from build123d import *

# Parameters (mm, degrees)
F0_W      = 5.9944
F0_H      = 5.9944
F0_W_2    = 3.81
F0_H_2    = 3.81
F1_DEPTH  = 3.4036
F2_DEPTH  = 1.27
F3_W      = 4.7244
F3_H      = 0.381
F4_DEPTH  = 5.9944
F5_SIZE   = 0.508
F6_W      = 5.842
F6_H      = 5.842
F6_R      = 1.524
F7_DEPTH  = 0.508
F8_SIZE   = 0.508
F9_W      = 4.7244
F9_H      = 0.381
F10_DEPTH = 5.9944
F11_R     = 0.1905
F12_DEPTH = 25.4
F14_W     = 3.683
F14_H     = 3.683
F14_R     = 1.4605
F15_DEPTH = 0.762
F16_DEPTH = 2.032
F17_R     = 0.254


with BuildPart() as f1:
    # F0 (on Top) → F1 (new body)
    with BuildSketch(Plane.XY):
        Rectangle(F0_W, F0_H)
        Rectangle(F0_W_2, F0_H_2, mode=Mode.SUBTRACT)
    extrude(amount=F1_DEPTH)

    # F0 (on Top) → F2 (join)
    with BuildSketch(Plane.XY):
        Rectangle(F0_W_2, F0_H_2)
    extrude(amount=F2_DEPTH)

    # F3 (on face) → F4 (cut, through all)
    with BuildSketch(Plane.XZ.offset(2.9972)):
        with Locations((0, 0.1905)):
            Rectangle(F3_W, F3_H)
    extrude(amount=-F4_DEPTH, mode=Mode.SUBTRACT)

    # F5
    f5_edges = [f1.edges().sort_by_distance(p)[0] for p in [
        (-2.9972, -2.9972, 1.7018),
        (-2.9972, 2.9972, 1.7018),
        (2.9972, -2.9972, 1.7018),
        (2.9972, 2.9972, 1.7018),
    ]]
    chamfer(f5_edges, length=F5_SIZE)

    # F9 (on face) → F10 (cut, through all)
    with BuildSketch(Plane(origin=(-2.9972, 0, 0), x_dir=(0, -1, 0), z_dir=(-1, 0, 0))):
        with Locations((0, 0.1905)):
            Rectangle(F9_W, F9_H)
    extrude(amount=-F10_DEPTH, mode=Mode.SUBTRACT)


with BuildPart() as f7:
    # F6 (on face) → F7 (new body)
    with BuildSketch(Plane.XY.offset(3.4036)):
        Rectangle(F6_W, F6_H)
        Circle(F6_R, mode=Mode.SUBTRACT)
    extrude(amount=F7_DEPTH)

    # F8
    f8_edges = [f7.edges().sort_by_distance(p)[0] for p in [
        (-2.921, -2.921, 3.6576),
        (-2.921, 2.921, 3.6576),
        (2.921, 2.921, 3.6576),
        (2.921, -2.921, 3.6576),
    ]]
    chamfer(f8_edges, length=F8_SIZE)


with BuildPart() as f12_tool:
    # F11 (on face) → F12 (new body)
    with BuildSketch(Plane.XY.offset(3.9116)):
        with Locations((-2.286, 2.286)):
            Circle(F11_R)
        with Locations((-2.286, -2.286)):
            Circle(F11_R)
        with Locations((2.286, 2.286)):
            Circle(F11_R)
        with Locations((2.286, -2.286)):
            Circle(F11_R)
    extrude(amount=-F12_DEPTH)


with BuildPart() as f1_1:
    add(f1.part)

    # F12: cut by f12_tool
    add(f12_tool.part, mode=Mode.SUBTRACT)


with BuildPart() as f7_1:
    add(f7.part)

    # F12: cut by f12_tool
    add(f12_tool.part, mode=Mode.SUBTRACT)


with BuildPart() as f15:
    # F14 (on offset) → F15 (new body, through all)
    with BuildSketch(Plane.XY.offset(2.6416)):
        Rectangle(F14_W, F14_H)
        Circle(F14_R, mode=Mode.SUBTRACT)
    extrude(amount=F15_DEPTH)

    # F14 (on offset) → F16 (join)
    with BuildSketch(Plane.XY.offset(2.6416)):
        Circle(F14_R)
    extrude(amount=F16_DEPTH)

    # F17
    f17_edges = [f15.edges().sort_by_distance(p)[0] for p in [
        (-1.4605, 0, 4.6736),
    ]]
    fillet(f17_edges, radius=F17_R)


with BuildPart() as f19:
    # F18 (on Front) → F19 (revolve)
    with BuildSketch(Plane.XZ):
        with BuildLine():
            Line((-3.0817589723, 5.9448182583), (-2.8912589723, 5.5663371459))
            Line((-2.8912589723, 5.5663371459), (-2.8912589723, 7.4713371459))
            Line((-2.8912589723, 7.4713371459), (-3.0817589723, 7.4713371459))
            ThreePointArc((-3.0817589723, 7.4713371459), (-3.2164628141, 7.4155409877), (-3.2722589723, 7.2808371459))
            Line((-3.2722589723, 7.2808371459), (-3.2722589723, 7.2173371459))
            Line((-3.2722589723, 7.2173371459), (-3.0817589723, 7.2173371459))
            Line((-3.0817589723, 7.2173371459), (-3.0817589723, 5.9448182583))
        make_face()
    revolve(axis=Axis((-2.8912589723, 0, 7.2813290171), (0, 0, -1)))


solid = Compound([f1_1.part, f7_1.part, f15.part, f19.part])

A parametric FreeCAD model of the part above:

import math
import FreeCAD as App
import Part
import Sketcher

V = App.Vector
Q = App.Units.Quantity


def edges_at(feature, points):
    """Names of the edges that pass closest to the given points."""
    edges = feature.Shape.Edges
    near = lambda p: min(range(len(edges)), key=lambda i: edges[i].distToShape(Part.Vertex(*p))[0])
    return sorted({f"Edge{near(p) + 1}" for p in points})

doc = App.newDocument("Part")
body = doc.addObject("PartDesign::Body", "Body")

sketch1 = doc.addObject("Sketcher::SketchObject", "Sketch")
body.addObject(sketch1)
sketch1.AttachmentSupport = (doc.XY_Plane, [""])
sketch1.MapMode = "FlatFace"
sketch1.addGeometry([
    Part.LineSegment(V(-3, 3, 0), V(-3, -3, 0)),
    Part.LineSegment(V(-3, -3, 0), V(3, -3, 0)),
    Part.LineSegment(V(3, -3, 0), V(3, 3, 0)),
    Part.LineSegment(V(3, 3, 0), V(-3, 3, 0)),
    Part.LineSegment(V(1.9, -1.9, 0), V(-1.9, -1.9, 0)),
    Part.LineSegment(V(-1.9, -1.9, 0), V(-1.9, 1.9, 0)),
    Part.LineSegment(V(-1.9, 1.9, 0), V(1.9, 1.9, 0)),
    Part.LineSegment(V(1.9, 1.9, 0), V(1.9, -1.9, 0)),
], False)
sketch1.addConstraint([
    Sketcher.Constraint("Coincident", 0, 2, 1, 1),
    Sketcher.Constraint("Coincident", 1, 2, 2, 1),
    Sketcher.Constraint("Coincident", 2, 2, 3, 1),
    Sketcher.Constraint("Coincident", 3, 2, 0, 1),
    Sketcher.Constraint("Coincident", 4, 2, 5, 1),
    Sketcher.Constraint("Coincident", 5, 2, 6, 1),
    Sketcher.Constraint("Coincident", 6, 2, 7, 1),
    Sketcher.Constraint("Coincident", 7, 2, 4, 1),
    Sketcher.Constraint("Vertical", 0),
    Sketcher.Constraint("Horizontal", 1),
    Sketcher.Constraint("Vertical", 2),
    Sketcher.Constraint("Horizontal", 3),
    Sketcher.Constraint("Horizontal", 4),
    Sketcher.Constraint("Vertical", 5),
    Sketcher.Constraint("Horizontal", 6),
    Sketcher.Constraint("Vertical", 7),
    Sketcher.Constraint("Symmetric", 0, 2, 2, 2, -1, 1),
    Sketcher.Constraint("Symmetric", 4, 2, 6, 2, -1, 1),
    Sketcher.Constraint("Equal", 3, 0),
    Sketcher.Constraint("Equal", 6, 5),
    Sketcher.Constraint("DistanceX", 4, 2, 4, 1, Q("0.15 in")),
    Sketcher.Constraint("DistanceX", 1, 1, 1, 2, Q("0.236 in")),
])
pad1 = doc.addObject("PartDesign::Pad", "Pad")
body.addObject(pad1)
pad1.Profile = sketch1
pad1.Length = Q("0.134 in")

sketch2 = doc.addObject("Sketcher::SketchObject", "Sketch001")
body.addObject(sketch2)
sketch2.AttachmentSupport = (doc.XY_Plane, [""])
sketch2.MapMode = "FlatFace"
sketch2.addGeometry([
    Part.LineSegment(V(-1.9, 1.9, 0), V(-1.9, -1.9, 0)),
    Part.LineSegment(V(-1.9, -1.9, 0), V(1.9, -1.9, 0)),
    Part.LineSegment(V(1.9, -1.9, 0), V(1.9, 1.9, 0)),
    Part.LineSegment(V(1.9, 1.9, 0), V(-1.9, 1.9, 0)),
], False)
sketch2.addConstraint([
    Sketcher.Constraint("Coincident", 0, 2, 1, 1),
    Sketcher.Constraint("Coincident", 1, 2, 2, 1),
    Sketcher.Constraint("Coincident", 2, 2, 3, 1),
    Sketcher.Constraint("Coincident", 3, 2, 0, 1),
    Sketcher.Constraint("Vertical", 0),
    Sketcher.Constraint("Horizontal", 1),
    Sketcher.Constraint("Vertical", 2),
    Sketcher.Constraint("Horizontal", 3),
    Sketcher.Constraint("Symmetric", 0, 2, 2, 2, -1, 1),
    Sketcher.Constraint("Equal", 3, 0),
    Sketcher.Constraint("DistanceX", 1, 1, 1, 2, Q("0.15 in")),
])
pad2 = doc.addObject("PartDesign::Pad", "Pad001")
body.addObject(pad2)
pad2.Profile = sketch2
pad2.Length = Q("0.05 in")

sketch3 = doc.addObject("Sketcher::SketchObject", "Sketch002")
body.addObject(sketch3)
sketch3.AttachmentSupport = (doc.XZ_Plane, [""])
sketch3.MapMode = "FlatFace"
sketch3.AttachmentOffset = App.Placement(V(0, 0, 0.118 * 25.4), App.Rotation())
sketch3.addGeometry([
    Part.LineSegment(V(-2.36, 0.38, 0), V(-2.36, 0, 0)),
    Part.LineSegment(V(-2.36, 0, 0), V(2.36, 0, 0)),
    Part.LineSegment(V(2.36, 0, 0), V(2.36, 0.38, 0)),
    Part.LineSegment(V(2.36, 0.38, 0), V(-2.36, 0.38, 0)),
], False)
sketch3.addConstraint([
    Sketcher.Constraint("Coincident", 0, 2, 1, 1),
    Sketcher.Constraint("Coincident", 1, 2, 2, 1),
    Sketcher.Constraint("Coincident", 2, 2, 3, 1),
    Sketcher.Constraint("Coincident", 3, 2, 0, 1),
    Sketcher.Constraint("Vertical", 0),
    Sketcher.Constraint("Horizontal", 1),
    Sketcher.Constraint("Vertical", 2),
    Sketcher.Constraint("Horizontal", 3),
    Sketcher.Constraint("Symmetric", 0, 2, 1, 2, -1, 1),
    Sketcher.Constraint("DistanceX", 1, 1, 1, 2, Q("0.186 in")),
    Sketcher.Constraint("DistanceY", 0, 2, 0, 1, Q("0.015 in")),
])
pocket1 = doc.addObject("PartDesign::Pocket", "Pocket")
body.addObject(pocket1)
pocket1.Profile = sketch3
pocket1.Type = "ThroughAll"
doc.recompute()

chamfer = doc.addObject("PartDesign::Chamfer", "Chamfer")
body.addObject(chamfer)
chamfer.Base = (pocket1, edges_at(pocket1, [
    (-2.997, -2.997, 1.702),
    (-2.997, 2.997, 1.702),
    (2.997, -2.997, 1.702),
    (2.997, 2.997, 1.702),
]))
chamfer.Size = Q("0.02 in")

sketch4 = doc.addObject("Sketcher::SketchObject", "Sketch003")
body.addObject(sketch4)
sketch4.AttachmentSupport = (doc.YZ_Plane, [""])
sketch4.MapMode = "FlatFace"
sketch4.AttachmentOffset = App.Placement(V(0, 0, -0.118 * 25.4), App.Rotation())
sketch4.addGeometry([
    Part.LineSegment(V(2.36, 0.38, 0), V(2.36, 0, 0)),
    Part.LineSegment(V(2.36, 0, 0), V(-2.36, 0, 0)),
    Part.LineSegment(V(-2.36, 0, 0), V(-2.36, 0.38, 0)),
    Part.LineSegment(V(-2.36, 0.38, 0), V(2.36, 0.38, 0)),
], False)
sketch4.addConstraint([
    Sketcher.Constraint("Coincident", 0, 2, 1, 1),
    Sketcher.Constraint("Coincident", 1, 2, 2, 1),
    Sketcher.Constraint("Coincident", 2, 2, 3, 1),
    Sketcher.Constraint("Coincident", 3, 2, 0, 1),
    Sketcher.Constraint("Vertical", 0),
    Sketcher.Constraint("Horizontal", 1),
    Sketcher.Constraint("Vertical", 2),
    Sketcher.Constraint("Horizontal", 3),
    Sketcher.Constraint("Symmetric", 0, 2, 1, 2, -1, 1),
    Sketcher.Constraint("DistanceX", 1, 2, 1, 1, Q("0.186 in")),
    Sketcher.Constraint("DistanceY", 0, 2, 0, 1, Q("0.015 in")),
])
pocket2 = doc.addObject("PartDesign::Pocket", "Pocket001")
body.addObject(pocket2)
pocket2.Profile = sketch4
pocket2.Type = "ThroughAll"
pocket2.Reversed = True
body2 = doc.addObject("PartDesign::Body", "Body001")

sketch5 = doc.addObject("Sketcher::SketchObject", "Sketch004")
body2.addObject(sketch5)
sketch5.AttachmentSupport = (doc.getObject("XY_Plane001"), [""])
sketch5.MapMode = "FlatFace"
sketch5.AttachmentOffset = App.Placement(V(0, 0, 0.134 * 25.4), App.Rotation())
sketch5.addGeometry([
    Part.LineSegment(V(-2.9, 2.9, 0), V(-2.9, -2.9, 0)),
    Part.LineSegment(V(-2.9, -2.9, 0), V(2.9, -2.9, 0)),
    Part.LineSegment(V(2.9, -2.9, 0), V(2.9, 2.9, 0)),
    Part.LineSegment(V(2.9, 2.9, 0), V(-2.9, 2.9, 0)),
    Part.Circle(V(0, 0, 0), V(0, 0, 1), 1.5),
], False)
sketch5.addConstraint([
    Sketcher.Constraint("Coincident", 0, 2, 1, 1),
    Sketcher.Constraint("Coincident", 1, 2, 2, 1),
    Sketcher.Constraint("Coincident", 2, 2, 3, 1),
    Sketcher.Constraint("Coincident", 3, 2, 0, 1),
    Sketcher.Constraint("Vertical", 0),
    Sketcher.Constraint("Horizontal", 1),
    Sketcher.Constraint("Vertical", 2),
    Sketcher.Constraint("Horizontal", 3),
    Sketcher.Constraint("Coincident", 4, 3, -1, 1),
    Sketcher.Constraint("Symmetric", 0, 2, 2, 2, -1, 1),
    Sketcher.Constraint("Equal", 3, 0),
    Sketcher.Constraint("Diameter", 4, Q("0.12 in")),
    Sketcher.Constraint("DistanceX", 1, 1, 1, 2, Q("0.23 in")),
])
pad3 = doc.addObject("PartDesign::Pad", "Pad002")
body2.addObject(pad3)
pad3.Profile = sketch5
pad3.Length = Q("0.02 in")
doc.recompute()

chamfer2 = doc.addObject("PartDesign::Chamfer", "Chamfer001")
body2.addObject(chamfer2)
chamfer2.Base = (pad3, edges_at(pad3, [
    (-2.921, -2.921, 3.658),
    (-2.921, 2.921, 3.658),
    (2.921, 2.921, 3.658),
    (2.921, -2.921, 3.658),
]))
chamfer2.Size = Q("0.02 in")
body3 = doc.addObject("PartDesign::Body", "Body002")
body3.AllowCompound = True

sketch6 = doc.addObject("Sketcher::SketchObject", "Sketch005")
body3.addObject(sketch6)
sketch6.AttachmentSupport = (doc.getObject("XY_Plane002"), [""])
sketch6.MapMode = "FlatFace"
sketch6.AttachmentOffset = App.Placement(V(0, 0, 0.154 * 25.4), App.Rotation())
sketch6.addGeometry([
    Part.Circle(V(-2.29, 2.29, 0), V(0, 0, 1), 0.19),
    Part.Circle(V(-2.29, -2.29, 0), V(0, 0, 1), 0.19),
    Part.Circle(V(2.29, 2.29, 0), V(0, 0, 1), 0.19),
    Part.Circle(V(2.29, -2.29, 0), V(0, 0, 1), 0.19),
], False)
sketch6.addConstraint([
    Sketcher.Constraint("Equal", 0, 1),
    Sketcher.Constraint("Equal", 1, 2),
    Sketcher.Constraint("Equal", 2, 3),
    Sketcher.Constraint("Symmetric", 1, 3, 2, 3, -1, 1),
    Sketcher.Constraint("Symmetric", 0, 3, 3, 3, -1, 1),
    Sketcher.Constraint("Symmetric", 0, 3, 2, 3, -2),
    Sketcher.Constraint("Diameter", 0, Q("0.015 in")),
    Sketcher.Constraint("DistanceX", 0, 3, -1, 1, Q("0.09 in")),
    Sketcher.Constraint("DistanceY", -1, 1, 0, 3, Q("0.09 in")),
])
pad4 = doc.addObject("PartDesign::Pad", "Pad003")
body3.addObject(pad4)
pad4.Profile = sketch6
pad4.Length = Q("1 in")
pad4.Reversed = True
doc.recompute()

body4 = doc.addObject("PartDesign::Body", "Body003")
body4.BaseFeature = body3
boolean = doc.addObject("PartDesign::Boolean", "Boolean")
body.addObject(boolean)
boolean.Type = "Cut"
boolean.addObjects([body4])
doc.recompute()

boolean2 = doc.addObject("PartDesign::Boolean", "Boolean001")
body2.addObject(boolean2)
boolean2.Type = "Cut"
boolean2.addObjects([body3])
body5 = doc.addObject("PartDesign::Body", "Body004")

sketch7 = doc.addObject("Sketcher::SketchObject", "Sketch006")
body5.addObject(sketch7)
sketch7.AttachmentSupport = (doc.getObject("XY_Plane004"), [""])
sketch7.MapMode = "FlatFace"
sketch7.AttachmentOffset = App.Placement(V(0, 0, 0.104 * 25.4), App.Rotation())
sketch7.addGeometry([
    Part.LineSegment(V(-1.8, 1.8, 0), V(-1.8, -1.8, 0)),
    Part.LineSegment(V(-1.8, -1.8, 0), V(1.8, -1.8, 0)),
    Part.LineSegment(V(1.8, -1.8, 0), V(1.8, 1.8, 0)),
    Part.LineSegment(V(1.8, 1.8, 0), V(-1.8, 1.8, 0)),
    Part.Circle(V(0, 0, 0), V(0, 0, 1), 1.5),
], False)
sketch7.addConstraint([
    Sketcher.Constraint("Coincident", 0, 2, 1, 1),
    Sketcher.Constraint("Coincident", 1, 2, 2, 1),
    Sketcher.Constraint("Coincident", 2, 2, 3, 1),
    Sketcher.Constraint("Coincident", 3, 2, 0, 1),
    Sketcher.Constraint("Vertical", 0),
    Sketcher.Constraint("Horizontal", 1),
    Sketcher.Constraint("Vertical", 2),
    Sketcher.Constraint("Horizontal", 3),
    Sketcher.Constraint("Coincident", 4, 3, -1, 1),
    Sketcher.Constraint("Symmetric", 0, 2, 2, 2, -1, 1),
    Sketcher.Constraint("Equal", 3, 0),
    Sketcher.Constraint("Diameter", 4, Q("0.115 in")),
    Sketcher.Constraint("DistanceX", 1, 1, 1, 2, Q("0.145 in")),
])
pad5 = doc.addObject("PartDesign::Pad", "Pad004")
body5.addObject(pad5)
pad5.Profile = sketch7
pad5.Length = Q("0.03 in")

sketch8 = doc.addObject("Sketcher::SketchObject", "Sketch007")
body5.addObject(sketch8)
sketch8.AttachmentSupport = (doc.getObject("XY_Plane004"), [""])
sketch8.MapMode = "FlatFace"
sketch8.AttachmentOffset = App.Placement(V(0, 0, 0.104 * 25.4), App.Rotation())
sketch8.addGeometry(Part.Circle(V(0, 0, 0), V(0, 0, 1), 1.5), False)
sketch8.addConstraint([
    Sketcher.Constraint("Coincident", 0, 3, -1, 1),
    Sketcher.Constraint("Diameter", 0, Q("0.115 in")),
])
pad6 = doc.addObject("PartDesign::Pad", "Pad005")
body5.addObject(pad6)
pad6.Profile = sketch8
pad6.Length = Q("0.08 in")
doc.recompute()

fillet = doc.addObject("PartDesign::Fillet", "Fillet")
body5.addObject(fillet)
fillet.Base = (pad6, edges_at(pad6, [(-1.46, 0, 4.674)]))
fillet.Radius = Q("0.01 in")
body6 = doc.addObject("PartDesign::Body", "Body005")

sketch9 = doc.addObject("Sketcher::SketchObject", "Sketch008")
body6.addObject(sketch9)
sketch9.AttachmentSupport = (doc.getObject("XZ_Plane005"), [""])
sketch9.MapMode = "FlatFace"
sketch9.addGeometry([
    Part.LineSegment(V(-3.08, 5.94, 0), V(-2.89, 5.57, 0)),
    Part.LineSegment(V(-2.89, 5.57, 0), V(-2.89, 7.47, 0)),
    Part.LineSegment(V(-2.89, 7.47, 0), V(-3.08, 7.47, 0)),
    Part.ArcOfCircle(Part.Circle(V(-3.08, 7.28, 0), V(0, 0, 1), 0.19), math.radians(90), math.radians(180)),
    Part.LineSegment(V(-3.27, 7.28, 0), V(-3.27, 7.22, 0)),
    Part.LineSegment(V(-3.27, 7.22, 0), V(-3.08, 7.22, 0)),
    Part.LineSegment(V(-3.08, 7.22, 0), V(-3.08, 5.94, 0)),
], False)
sketch9.addGeometry(Part.LineSegment(V(-2.89, 7.47, 0), V(-2.89, 5.57, 0)), True)
sketch9.addConstraint([
    Sketcher.Constraint("Coincident", 0, 2, 1, 1),
    Sketcher.Constraint("Coincident", 1, 2, 2, 1),
    Sketcher.Constraint("Tangent", 2, 2, 3, 1),
    Sketcher.Constraint("Tangent", 3, 2, 4, 1),
    Sketcher.Constraint("Coincident", 4, 2, 5, 1),
    Sketcher.Constraint("Coincident", 5, 2, 6, 1),
    Sketcher.Constraint("Coincident", 6, 2, 0, 1),
    Sketcher.Constraint("Vertical", 1),
    Sketcher.Constraint("Horizontal", 2),
    Sketcher.Constraint("Vertical", 4),
    Sketcher.Constraint("Horizontal", 5),
    Sketcher.Constraint("Vertical", 6),
    Sketcher.Constraint("Vertical", 7),
    Sketcher.Constraint("Coincident", 7, 1, 1, 2),
    Sketcher.Constraint("Vertical", 2, 2, 5, 2),
    Sketcher.Constraint("Equal", 2, 5),
    Sketcher.Constraint("Equal", 1, 7),
    Sketcher.Constraint("Radius", 3, Q("0.0075 in")),
    Sketcher.Constraint("DistanceY", 1, 1, 1, 2, Q("0.075 in")),
    Sketcher.Constraint("DistanceY", 4, 2, 2, 2, Q("0.01 in")),
    Sketcher.Constraint("DistanceY", 6, 2, 6, 1, Q("1.272519 mm")),
    Sketcher.Constraint("DistanceX", 3, 3, -1, 1, Q("3.081759 mm")),
    Sketcher.Constraint("DistanceY", -1, 1, 6, 2, Q("5.944818 mm")),
])
revolution = doc.addObject("PartDesign::Revolution", "Revolution")
body6.addObject(revolution)
revolution.Profile = sketch9
revolution.ReferenceAxis = (sketch9, ["Axis0"])
revolution.Angle = 360

doc.recompute()
